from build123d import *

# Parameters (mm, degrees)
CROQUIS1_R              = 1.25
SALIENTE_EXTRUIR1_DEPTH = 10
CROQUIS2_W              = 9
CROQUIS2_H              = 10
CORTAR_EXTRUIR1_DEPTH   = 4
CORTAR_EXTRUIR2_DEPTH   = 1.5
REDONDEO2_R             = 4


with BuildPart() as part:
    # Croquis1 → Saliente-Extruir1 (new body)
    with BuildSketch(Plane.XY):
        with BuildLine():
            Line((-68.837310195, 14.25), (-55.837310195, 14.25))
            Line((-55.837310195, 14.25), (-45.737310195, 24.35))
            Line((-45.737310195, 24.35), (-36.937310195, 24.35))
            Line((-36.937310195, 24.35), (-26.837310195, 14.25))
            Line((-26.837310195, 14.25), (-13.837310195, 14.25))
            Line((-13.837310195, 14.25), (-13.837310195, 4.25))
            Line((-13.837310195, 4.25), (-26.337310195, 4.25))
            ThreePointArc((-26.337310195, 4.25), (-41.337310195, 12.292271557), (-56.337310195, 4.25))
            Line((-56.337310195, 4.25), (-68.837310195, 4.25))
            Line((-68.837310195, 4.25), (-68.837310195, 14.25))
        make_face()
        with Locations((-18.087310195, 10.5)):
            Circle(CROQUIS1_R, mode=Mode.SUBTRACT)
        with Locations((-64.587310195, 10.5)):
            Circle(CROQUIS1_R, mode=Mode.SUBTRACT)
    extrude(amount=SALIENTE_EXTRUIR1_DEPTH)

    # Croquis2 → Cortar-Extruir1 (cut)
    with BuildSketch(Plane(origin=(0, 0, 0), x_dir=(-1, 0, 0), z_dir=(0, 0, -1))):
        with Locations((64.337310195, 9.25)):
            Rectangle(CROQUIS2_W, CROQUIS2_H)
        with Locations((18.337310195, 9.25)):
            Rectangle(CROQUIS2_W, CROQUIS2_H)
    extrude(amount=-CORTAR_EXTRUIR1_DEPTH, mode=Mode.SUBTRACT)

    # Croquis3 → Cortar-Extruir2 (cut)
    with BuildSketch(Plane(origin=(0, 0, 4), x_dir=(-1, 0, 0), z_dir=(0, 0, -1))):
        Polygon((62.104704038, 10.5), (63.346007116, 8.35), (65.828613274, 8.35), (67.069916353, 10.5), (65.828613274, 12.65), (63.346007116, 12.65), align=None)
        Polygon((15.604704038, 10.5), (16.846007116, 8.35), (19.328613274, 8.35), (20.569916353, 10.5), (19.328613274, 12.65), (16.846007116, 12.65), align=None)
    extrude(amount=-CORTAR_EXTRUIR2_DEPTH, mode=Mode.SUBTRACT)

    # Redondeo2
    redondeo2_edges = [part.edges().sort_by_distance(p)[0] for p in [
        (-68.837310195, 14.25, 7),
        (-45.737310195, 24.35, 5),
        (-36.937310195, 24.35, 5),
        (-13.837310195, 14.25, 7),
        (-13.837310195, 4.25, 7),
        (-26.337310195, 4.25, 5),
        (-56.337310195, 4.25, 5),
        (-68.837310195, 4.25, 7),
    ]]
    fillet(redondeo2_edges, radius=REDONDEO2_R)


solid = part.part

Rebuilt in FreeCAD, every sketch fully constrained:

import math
import FreeCAD as App
import Part
import Sketcher

V = App.Vector
Q = App.Units.Quantity


def edges_at(feature, points):
    """Names of the edges that pass closest to the given points."""
    edges = feature.Shape.Edges
    near = lambda p: min(range(len(edges)), key=lambda i: edges[i].distToShape(Part.Vertex(*p))[0])
    return sorted({f"Edge{near(p) + 1}" for p in points})


def add_polygon(sketch, points):
    """Adds a closed chain of lines whose ends are joined by coincident constraints."""
    first, n = sketch.GeometryCount, len(points)
    for a, b in zip(points, points[1:] + points[:1]):
        sketch.addGeometry(Part.LineSegment(App.Vector(*a, 0), App.Vector(*b, 0)), False)
    for i in range(n):
        sketch.addConstraint(Sketcher.Constraint("Coincident", first + i, 2, first + (i + 1) % n, 1))

doc = App.newDocument("Part")
body = doc.addObject("PartDesign::Body", "Body")

sketch1 = body.newObject("Sketcher::SketchObject", "Sketch")
sketch1.AttachmentSupport = (doc.getObject("XY_Plane"), [""])
sketch1.MapMode = "FlatFace"
sketch1.addGeometry(Part.LineSegment(V(-55.8, 14.2, 0), V(-68.8, 14.2, 0)), False)
sketch1.addGeometry(Part.LineSegment(V(-68.8, 14.2, 0), V(-68.8, 4.2, 0)), False)
sketch1.addGeometry(Part.LineSegment(V(-68.8, 4.2, 0), V(-56.3, 4.2, 0)), False)
sketch1.addGeometry(Part.ArcOfCircle(Part.Circle(V(-41.3, -5.7, 0), V(0, 0, 1), 18), math.radians(34), math.radians(146)), False)
sketch1.addGeometry(Part.LineSegment(V(-26.3, 4.2, 0), V(-13.8, 4.2, 0)), False)
sketch1.addGeometry(Part.LineSegment(V(-13.8, 4.2, 0), V(-13.8, 14.2, 0)), False)
sketch1.addGeometry(Part.LineSegment(V(-13.8, 14.2, 0), V(-26.8, 14.2, 0)), False)
sketch1.addGeometry(Part.LineSegment(V(-26.8, 14.2, 0), V(-36.9, 24.4, 0)), False)
sketch1.addGeometry(Part.LineSegment(V(-36.9, 24.4, 0), V(-45.7, 24.4, 0)), False)
sketch1.addGeometry(Part.LineSegment(V(-45.7, 24.4, 0), V(-55.8, 14.2, 0)), False)
sketch1.addGeometry(Part.Circle(V(-18.1, 10.5, 0), V(0, 0, 1), 1.2), False)
sketch1.addGeometry(Part.Circle(V(-64.6, 10.5, 0), V(0, 0, 1), 1.2), False)
sketch1.addConstraint(Sketcher.Constraint("Coincident", 0, 2, 1, 1))
sketch1.addConstraint(Sketcher.Constraint("Coincident", 1, 2, 2, 1))
sketch1.addConstraint(Sketcher.Constraint("Coincident", 2, 2, 3, 2))
sketch1.addConstraint(Sketcher.Constraint("Coincident", 3, 1, 4, 1))
sketch1.addConstraint(Sketcher.Constraint("Coincident", 4, 2, 5, 1))
sketch1.addConstraint(Sketcher.Constraint("Coincident", 5, 2, 6, 1))
sketch1.addConstraint(Sketcher.Constraint("Coincident", 6, 2, 7, 1))
sketch1.addConstraint(Sketcher.Constraint("Coincident", 7, 2, 8, 1))
sketch1.addConstraint(Sketcher.Constraint("Coincident", 8, 2, 9, 1))
sketch1.addConstraint(Sketcher.Constraint("Coincident", 9, 2, 0, 1))
sketch1.addConstraint(Sketcher.Constraint("Horizontal", 0))
sketch1.addConstraint(Sketcher.Constraint("Vertical", 1))
sketch1.addConstraint(Sketcher.Constraint("Horizontal", 2))
sketch1.addConstraint(Sketcher.Constraint("Horizontal", 4))
sketch1.addConstraint(Sketcher.Constraint("Vertical", 5))
sketch1.addConstraint(Sketcher.Constraint("Horizontal", 6))
sketch1.addConstraint(Sketcher.Constraint("Horizontal", 8))
sketch1.addConstraint(Sketcher.Constraint("Equal", 10, 11))
sketch1.addConstraint(Sketcher.Constraint("Perpendicular", 7, 9))
sketch1.addConstraint(Sketcher.Constraint("Horizontal", 10, 3, 11, 3))
sketch1.addConstraint(Sketcher.Constraint("Horizontal", 2, 2, 3, 1))
sketch1.addConstraint(Sketcher.Constraint("Horizontal", 0, 2, 5, 2))
sketch1.addConstraint(Sketcher.Constraint("Equal", 2, 4))
sketch1.addConstraint(Sketcher.Constraint("Equal", 0, 6))
sketch1.addConstraint(Sketcher.Constraint("Equal", 7, 9))
sketch1.addConstraint(Sketcher.Constraint("Diameter", 10, 2.5))
sketch1.addConstraint(Sketcher.Constraint("DistanceX", 0, 2, 0, 1, 13.0))
sketch1.addConstraint(Sketcher.Constraint("DistanceY", 1, 2, 1, 1, 10.0))
sketch1.addConstraint(Sketcher.Constraint("DistanceX", 2, 1, 2, 2, 12.5))
sketch1.addConstraint(Sketcher.Constraint("DistanceX", 8, 2, 8, 1, 8.8))
sketch1.addConstraint(Sketcher.Constraint("DistanceX", 2, 2, 3, 3, 15.0))
sketch1.addConstraint(Sketcher.Constraint("DistanceY", -1, 1, 10, 3, 10.5))
sketch1.addConstraint(Sketcher.Constraint("DistanceX", 11, 3, 10, 3, 46.5))
sketch1.addConstraint(Sketcher.Constraint("DistanceY", -1, 1, 0, 2, 14.25))
sketch1.addConstraint(Sketcher.Constraint("Radius", 3, 18.009721))
sketch1.addConstraint(Sketcher.Constraint("DistanceX", 3, 3, 10, 3, 23.25))
sketch1.addConstraint(Sketcher.Constraint("DistanceX", 3, 3, -1, 1, 41.33731))
pad1 = body.newObject("PartDesign::Pad", "Pad")
pad1.Profile = sketch1
pad1.Length = 10

sketch2 = body.newObject("Sketcher::SketchObject", "Sketch001")
sketch2.AttachmentSupport = (doc.getObject("XY_Plane"), [""])
sketch2.MapMode = "FlatFace"
add_polygon(sketch2, [(-60, 14), (-60, 4), (-69, 4), (-69, 14)])
add_polygon(sketch2, [(-14, 14), (-14, 4), (-23, 4), (-23, 14)])
sketch2.addConstraint(Sketcher.Constraint("Vertical", 0))
sketch2.addConstraint(Sketcher.Constraint("Horizontal", 1))
sketch2.addConstraint(Sketcher.Constraint("Vertical", 2))
sketch2.addConstraint(Sketcher.Constraint("Horizontal", 3))
sketch2.addConstraint(Sketcher.Constraint("Vertical", 4))
sketch2.addConstraint(Sketcher.Constraint("Horizontal", 5))
sketch2.addConstraint(Sketcher.Constraint("Vertical", 6))
sketch2.addConstraint(Sketcher.Constraint("Horizontal", 7))
sketch2.addConstraint(Sketcher.Constraint("Horizontal", 1, 2, 4, 2))
sketch2.addConstraint(Sketcher.Constraint("Horizontal", 3, 2, 6, 2))
sketch2.addConstraint(Sketcher.Constraint("Equal", 3, 5))
sketch2.addConstraint(Sketcher.Constraint("DistanceX", 1, 2, 1, 1, 9.0))
sketch2.addConstraint(Sketcher.Constraint("DistanceY", 0, 2, 0, 1, 10.0))
sketch2.addConstraint(Sketcher.Constraint("DistanceX", 0, 2, 4, 2, 46.0))
sketch2.addConstraint(Sketcher.Constraint("DistanceY", -1, 1, 0, 2, 4.25))
sketch2.addConstraint(Sketcher.Constraint("DistanceX", 0, 2, -1, 1, 59.83731))
pocket1 = body.newObject("PartDesign::Pocket", "Pocket")
pocket1.Profile = sketch2
pocket1.Length = 4
pocket1.Reversed = True

sketch3 = body.newObject("Sketcher::SketchObject", "Sketch002")
sketch3.AttachmentSupport = (doc.getObject("XY_Plane"), [""])
sketch3.MapMode = "FlatFace"
sketch3.AttachmentOffset = App.Placement(V(0, 0, 4), App.Rotation())
add_polygon(sketch3, [(-62.1, 10.5), (-63.3, 8.3), (-65.8, 8.3), (-67.1, 10.5), (-65.8, 12.7), (-63.3, 12.7)])
add_polygon(sketch3, [(-15.6, 10.5), (-16.8, 8.3), (-19.3, 8.3), (-20.6, 10.5), (-19.3, 12.7), (-16.8, 12.7)])
sketch3.addConstraint(Sketcher.Constraint("Horizontal", 1))
sketch3.addConstraint(Sketcher.Constraint("Horizontal", 4))
sketch3.addConstraint(Sketcher.Constraint("Horizontal", 7))
sketch3.addConstraint(Sketcher.Constraint("Horizontal", 10))
sketch3.addConstraint(Sketcher.Constraint("Parallel", 0, 3))
sketch3.addConstraint(Sketcher.Constraint("Parallel", 2, 5))
sketch3.addConstraint(Sketcher.Constraint("Parallel", 3, 6))
sketch3.addConstraint(Sketcher.Constraint("Parallel", 5, 8))
sketch3.addConstraint(Sketcher.Constraint("Parallel", 6, 9))
sketch3.addConstraint(Sketcher.Constraint("Parallel", 8, 11))
sketch3.addConstraint(Sketcher.Constraint("Horizontal", 2, 2, 5, 2))
sketch3.addConstraint(Sketcher.Constraint("Horizontal", 1, 2, 6, 2))
sketch3.addConstraint(Sketcher.Constraint("Horizontal", 5, 2, 8, 2))
sketch3.addConstraint(Sketcher.Constraint("Horizontal", 4, 2, 9, 2))
sketch3.addConstraint(Sketcher.Constraint("Horizontal", 8, 2, 11, 2))
sketch3.addConstraint(Sketcher.Constraint("Vertical", 1, 2, 3, 2))
sketch3.addConstraint(Sketcher.Constraint("Vertical", 0, 2, 4, 2))
sketch3.addConstraint(Sketcher.Constraint("Equal", 4, 7))
sketch3.addConstraint(Sketcher.Constraint("Angle", 0, Q("-120 deg")))
sketch3.addConstraint(Sketcher.Constraint("DistanceY", -1, 1, 2, 2, 10.5))
sketch3.addConstraint(Sketcher.Constraint("DistanceY", 1, 2, 3, 2, 4.3))
sketch3.addConstraint(Sketcher.Constraint("DistanceX", 0, 2, 6, 2, 46.5))
sketch3.addConstraint(Sketcher.Constraint("DistanceX", 1, 2, 1, 1, 2.482606))
sketch3.addConstraint(Sketcher.Constraint("DistanceX", 0, 2, -1, 1, 63.346007))
pocket2 = body.newObject("PartDesign::Pocket", "Pocket001")
pocket2.Profile = sketch3
pocket2.Length = 1.5
pocket2.Reversed = True
doc.recompute()

fillet = body.newObject("PartDesign::Fillet", "Fillet")
fillet.Base = (pocket2, edges_at(pocket2, [
    (-68.837, 14.25, 7),
    (-45.737, 24.35, 5),
    (-36.937, 24.35, 5),
    (-13.837, 14.25, 7),
    (-13.837, 4.25, 7),
    (-26.337, 4.25, 5),
    (-56.337, 4.25, 5),
    (-68.837, 4.25, 7),
]))
fillet.Radius = 4

doc.recompute()
